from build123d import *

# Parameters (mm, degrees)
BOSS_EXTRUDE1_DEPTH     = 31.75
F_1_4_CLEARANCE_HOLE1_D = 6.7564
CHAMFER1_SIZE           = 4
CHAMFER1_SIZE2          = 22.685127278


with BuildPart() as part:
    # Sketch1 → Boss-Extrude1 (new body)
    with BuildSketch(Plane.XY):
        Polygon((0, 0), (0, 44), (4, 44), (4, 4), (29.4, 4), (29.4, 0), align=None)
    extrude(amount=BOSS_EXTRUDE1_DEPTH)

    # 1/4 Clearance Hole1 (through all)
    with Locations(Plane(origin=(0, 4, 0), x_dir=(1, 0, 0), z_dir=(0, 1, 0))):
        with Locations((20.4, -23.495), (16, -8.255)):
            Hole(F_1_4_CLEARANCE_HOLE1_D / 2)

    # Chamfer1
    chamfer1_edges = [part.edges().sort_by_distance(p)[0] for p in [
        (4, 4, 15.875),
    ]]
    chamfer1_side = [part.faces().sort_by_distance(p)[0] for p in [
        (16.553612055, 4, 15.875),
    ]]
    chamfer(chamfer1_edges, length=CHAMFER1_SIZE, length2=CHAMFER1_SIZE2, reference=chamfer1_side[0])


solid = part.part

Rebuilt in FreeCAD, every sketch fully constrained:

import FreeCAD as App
import Part
import Sketcher
from FreeCAD import Vector
Q = App.Units.Quantity


def edges_at(feature, points):
    """Names of the edges that pass closest to the given points."""
    edges = feature.Shape.Edges
    near = lambda p: min(range(len(edges)), key=lambda i: edges[i].distToShape(Part.Vertex(*p))[0])
    return sorted({f"Edge{near(p) + 1}" for p in points})


def add_polygon(sketch, points):
    """Adds a closed chain of lines whose ends are joined by coincident constraints."""
    first, n = sketch.GeometryCount, len(points)
    for a, b in zip(points, points[1:] + points[:1]):
        sketch.addGeometry(Part.LineSegment(App.Vector(*a, 0), App.Vector(*b, 0)), False)
    for i in range(n):
        sketch.addConstraint(Sketcher.Constraint("Coincident", first + i, 2, first + (i + 1) % n, 1))

doc = App.newDocument("Part")
params = doc.addObject("Spreadsheet::Sheet", "Params")
for row, (alias, value) in enumerate([
    ("sketch1_width", "4 mm"),
    ("sketch1_height", "44 mm"),
    ("sketch1_width2", "29.4 mm"),
    ("pad1_length", "31.75 mm"),
    ("hole_diameter", "6.7564 mm"),
    ("chamfer_size", "4 mm"),
    ("chamfer_size2", "22.685127 mm"),
], start=1):
    params.set(f"A{row}", alias)
    params.set(f"B{row}", "=" + value)
    params.setAlias(f"B{row}", alias)

body = doc.addObject("PartDesign::Body", "Body")

sketch1 = body.newObject("Sketcher::SketchObject", "Sketch")
sketch1.AttachmentSupport = (doc.getObject("XY_Plane"), [""])
sketch1.MapMode = "FlatFace"
add_polygon(sketch1, [(0, 44), (0, 0), (29.4, 0), (29.4, 4), (4, 4), (4, 44)])
sketch1.addConstraint([
    Sketcher.Constraint("Vertical", 0),
    Sketcher.Constraint("Horizontal", 1),
    Sketcher.Constraint("Vertical", 2),
    Sketcher.Constraint("Horizontal", 3),
    Sketcher.Constraint("Vertical", 4),
    Sketcher.Constraint("Horizontal", 5),
    Sketcher.Constraint("Coincident", 0, 2, -1, 1),
    Sketcher.Constraint("Equal", 5, 2),
    Sketcher.Constraint("DistanceX", 5, 2, 5, 1, Q("4 mm")),
    Sketcher.Constraint("DistanceY", 0, 2, 0, 1, Q("44 mm")),
    Sketcher.Constraint("DistanceX", 1, 1, 1, 2, Q("29.4 mm")),
])
sketch1.setExpression("Constraints[14]", "Params.sketch1_width")
sketch1.setExpression("Constraints[15]", "Params.sketch1_height")
sketch1.setExpression("Constraints[16]", "Params.sketch1_width2")
pad1 = body.newObject("PartDesign::Pad", "Pad")
pad1.Profile = sketch1
pad1.setExpression("Length", "Params.pad1_length")

sketch2 = body.newObject("Sketcher::SketchObject", "Sketch001")
sketch2.AttachmentSupport = (doc.getObject("XZ_Plane"), [""])
sketch2.MapMode = "FlatFace"
sketch2.AttachmentOffset = App.Placement(Vector(0, 0, -4), App.Rotation())
sketch2.addGeometry([
    Part.Circle(Vector(20.4, 23.495, 0), Vector(0, 0, 1), 3.3782),
    Part.Circle(Vector(16, 8.255, 0), Vector(0, 0, 1), 3.3782),
], False)
sketch2.addConstraint([
    Sketcher.Constraint("Equal", 0, 1),
    Sketcher.Constraint("DistanceX", -1, 1, 1, 3, Q("16 mm")),
    Sketcher.Constraint("Diameter", 0, Q("6.7564 mm")),
    Sketcher.Constraint("DistanceX", -1, 1, 0, 3, Q("20.4 mm")),
    Sketcher.Constraint("DistanceY", 1, 3, 0, 3, Q("15.24 mm")),
    Sketcher.Constraint("DistanceY", -1, 1, 0, 3, Q("23.495 mm")),
])
doc.recompute()
hole = body.newObject("PartDesign::Hole", "Hole")
hole.Profile = sketch2
hole.ThreadType = "None"
hole.setExpression("Diameter", "Params.hole_diameter")
hole.DepthType = "ThroughAll"
hole.Reversed = True
doc.recompute()

chamfer = body.newObject("PartDesign::Chamfer", "Chamfer")
chamfer.Base = (hole, edges_at(hole, [(4, 4, 15.875)]))
chamfer.ChamferType = "Two distances"
chamfer.setExpression("Size", "Params.chamfer_size")
chamfer.setExpression("Size2", "Params.chamfer_size2")
chamfer.FlipDirection = True

doc.recompute()
